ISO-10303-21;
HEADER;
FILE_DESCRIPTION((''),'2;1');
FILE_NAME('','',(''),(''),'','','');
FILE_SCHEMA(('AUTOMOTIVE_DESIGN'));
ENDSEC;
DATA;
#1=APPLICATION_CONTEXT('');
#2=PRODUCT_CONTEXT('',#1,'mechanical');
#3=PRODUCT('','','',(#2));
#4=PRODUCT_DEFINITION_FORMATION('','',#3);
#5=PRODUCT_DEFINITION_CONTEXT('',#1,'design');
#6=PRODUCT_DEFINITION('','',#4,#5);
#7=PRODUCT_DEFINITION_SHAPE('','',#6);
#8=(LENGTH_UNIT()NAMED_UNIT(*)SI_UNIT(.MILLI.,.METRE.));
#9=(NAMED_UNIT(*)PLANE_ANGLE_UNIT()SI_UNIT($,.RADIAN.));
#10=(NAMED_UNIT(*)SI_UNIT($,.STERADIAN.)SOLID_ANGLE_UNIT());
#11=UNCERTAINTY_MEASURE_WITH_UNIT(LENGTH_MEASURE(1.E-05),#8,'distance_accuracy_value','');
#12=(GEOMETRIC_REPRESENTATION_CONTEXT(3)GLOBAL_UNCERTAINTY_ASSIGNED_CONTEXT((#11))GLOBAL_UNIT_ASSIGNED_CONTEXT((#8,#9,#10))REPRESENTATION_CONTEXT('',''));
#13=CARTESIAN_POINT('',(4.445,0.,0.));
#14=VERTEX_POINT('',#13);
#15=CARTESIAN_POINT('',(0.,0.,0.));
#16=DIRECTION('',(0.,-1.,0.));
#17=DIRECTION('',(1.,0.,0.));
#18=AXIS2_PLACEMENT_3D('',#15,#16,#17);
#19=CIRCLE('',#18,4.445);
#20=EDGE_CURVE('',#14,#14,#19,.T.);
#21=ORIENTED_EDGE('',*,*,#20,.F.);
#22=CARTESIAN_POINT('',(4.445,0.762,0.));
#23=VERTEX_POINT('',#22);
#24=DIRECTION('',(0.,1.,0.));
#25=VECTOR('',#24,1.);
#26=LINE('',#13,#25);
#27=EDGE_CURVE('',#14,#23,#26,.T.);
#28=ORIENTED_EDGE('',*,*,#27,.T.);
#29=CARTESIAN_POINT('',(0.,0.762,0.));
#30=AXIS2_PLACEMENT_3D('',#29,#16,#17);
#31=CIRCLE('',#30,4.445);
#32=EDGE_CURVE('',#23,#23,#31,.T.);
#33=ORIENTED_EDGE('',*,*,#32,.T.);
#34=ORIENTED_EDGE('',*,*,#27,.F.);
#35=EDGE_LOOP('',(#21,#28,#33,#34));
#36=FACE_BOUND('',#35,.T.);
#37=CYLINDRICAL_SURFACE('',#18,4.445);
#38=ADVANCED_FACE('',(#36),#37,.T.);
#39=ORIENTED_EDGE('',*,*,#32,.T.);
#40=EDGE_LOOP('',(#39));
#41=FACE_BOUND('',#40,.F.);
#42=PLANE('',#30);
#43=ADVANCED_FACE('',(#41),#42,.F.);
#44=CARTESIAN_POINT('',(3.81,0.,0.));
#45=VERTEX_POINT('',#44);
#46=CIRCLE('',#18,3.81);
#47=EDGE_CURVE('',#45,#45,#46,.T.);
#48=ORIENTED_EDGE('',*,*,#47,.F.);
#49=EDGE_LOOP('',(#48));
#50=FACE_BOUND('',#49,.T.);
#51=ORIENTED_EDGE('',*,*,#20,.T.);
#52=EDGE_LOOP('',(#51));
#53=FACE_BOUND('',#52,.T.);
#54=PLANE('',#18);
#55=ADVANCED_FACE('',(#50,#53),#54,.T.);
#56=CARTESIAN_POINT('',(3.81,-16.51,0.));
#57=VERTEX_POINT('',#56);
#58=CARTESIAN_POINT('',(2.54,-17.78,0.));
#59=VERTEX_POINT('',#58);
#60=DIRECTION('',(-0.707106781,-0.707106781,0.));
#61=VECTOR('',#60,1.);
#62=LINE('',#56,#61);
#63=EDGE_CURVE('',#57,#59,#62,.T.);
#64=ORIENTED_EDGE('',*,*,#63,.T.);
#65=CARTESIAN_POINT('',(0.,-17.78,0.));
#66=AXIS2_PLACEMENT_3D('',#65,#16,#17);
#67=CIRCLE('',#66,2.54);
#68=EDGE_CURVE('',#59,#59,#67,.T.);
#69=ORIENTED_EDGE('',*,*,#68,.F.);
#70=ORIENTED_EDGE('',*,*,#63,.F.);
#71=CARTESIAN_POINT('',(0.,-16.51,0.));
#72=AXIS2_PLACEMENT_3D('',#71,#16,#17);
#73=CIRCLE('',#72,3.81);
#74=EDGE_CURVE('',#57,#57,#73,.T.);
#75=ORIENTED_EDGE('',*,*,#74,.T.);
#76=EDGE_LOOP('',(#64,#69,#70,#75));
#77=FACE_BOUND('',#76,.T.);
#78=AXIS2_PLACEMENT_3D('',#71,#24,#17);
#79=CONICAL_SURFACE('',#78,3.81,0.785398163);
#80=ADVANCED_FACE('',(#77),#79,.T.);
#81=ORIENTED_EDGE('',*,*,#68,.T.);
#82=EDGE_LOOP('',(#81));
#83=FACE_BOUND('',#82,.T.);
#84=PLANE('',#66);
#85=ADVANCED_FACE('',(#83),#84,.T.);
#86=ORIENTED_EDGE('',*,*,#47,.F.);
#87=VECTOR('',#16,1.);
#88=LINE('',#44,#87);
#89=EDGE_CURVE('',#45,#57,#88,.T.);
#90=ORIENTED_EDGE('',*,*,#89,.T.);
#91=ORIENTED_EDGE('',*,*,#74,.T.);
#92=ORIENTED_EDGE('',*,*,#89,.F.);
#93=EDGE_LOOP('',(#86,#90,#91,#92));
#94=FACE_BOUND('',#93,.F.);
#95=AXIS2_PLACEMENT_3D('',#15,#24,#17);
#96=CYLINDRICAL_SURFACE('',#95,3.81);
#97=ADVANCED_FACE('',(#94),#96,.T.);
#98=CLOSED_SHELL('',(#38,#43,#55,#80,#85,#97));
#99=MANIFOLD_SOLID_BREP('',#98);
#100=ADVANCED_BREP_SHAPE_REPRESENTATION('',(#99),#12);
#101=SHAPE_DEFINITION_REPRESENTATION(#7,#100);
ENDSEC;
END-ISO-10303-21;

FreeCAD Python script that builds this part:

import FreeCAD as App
import Part
import Sketcher

V = App.Vector
Q = App.Units.Quantity


def edges_at(feature, points):
    """Names of the edges that pass closest to the given points."""
    edges = feature.Shape.Edges
    near = lambda p: min(range(len(edges)), key=lambda i: edges[i].distToShape(Part.Vertex(*p))[0])
    return sorted({f"Edge{near(p) + 1}" for p in points})

doc = App.newDocument("Part")
body = doc.addObject("PartDesign::Body", "Body")

sketch1 = body.newObject("Sketcher::SketchObject", "Sketch")
sketch1.AttachmentSupport = (doc.getObject("XZ_Plane"), [""])
sketch1.MapMode = "FlatFace"
sketch1.addGeometry(Part.Circle(V(0, 0, 0), V(0, 0, 1), 3.81), False)
sketch1.addConstraint([
    Sketcher.Constraint("Coincident", 0, 3, -1, 1),
    Sketcher.Constraint("Diameter", 0, Q("0.3 in")),
])
pad1 = body.newObject("PartDesign::Pad", "Pad")
pad1.Profile = sketch1
pad1.Length = Q("0.7 in")

sketch2 = body.newObject("Sketcher::SketchObject", "Sketch001")
sketch2.AttachmentSupport = (doc.getObject("XZ_Plane"), [""])
sketch2.MapMode = "FlatFace"
sketch2.addGeometry(Part.Circle(V(0, 0, 0), V(0, 0, 1), 4.445), False)
sketch2.addConstraint([
    Sketcher.Constraint("Coincident", 0, 3, -1, 1),
    Sketcher.Constraint("Diameter", 0, Q("0.35 in")),
])
pad2 = body.newObject("PartDesign::Pad", "Pad001")
pad2.Profile = sketch2
pad2.Length = Q("0.03 in")
pad2.Reversed = True
doc.recompute()

chamfer = body.newObject("PartDesign::Chamfer", "Chamfer")
chamfer.Base = (pad2, edges_at(pad2, [(-3.81, -17.78, 0)]))
chamfer.Size = Q("0.05 in")

doc.recompute()
